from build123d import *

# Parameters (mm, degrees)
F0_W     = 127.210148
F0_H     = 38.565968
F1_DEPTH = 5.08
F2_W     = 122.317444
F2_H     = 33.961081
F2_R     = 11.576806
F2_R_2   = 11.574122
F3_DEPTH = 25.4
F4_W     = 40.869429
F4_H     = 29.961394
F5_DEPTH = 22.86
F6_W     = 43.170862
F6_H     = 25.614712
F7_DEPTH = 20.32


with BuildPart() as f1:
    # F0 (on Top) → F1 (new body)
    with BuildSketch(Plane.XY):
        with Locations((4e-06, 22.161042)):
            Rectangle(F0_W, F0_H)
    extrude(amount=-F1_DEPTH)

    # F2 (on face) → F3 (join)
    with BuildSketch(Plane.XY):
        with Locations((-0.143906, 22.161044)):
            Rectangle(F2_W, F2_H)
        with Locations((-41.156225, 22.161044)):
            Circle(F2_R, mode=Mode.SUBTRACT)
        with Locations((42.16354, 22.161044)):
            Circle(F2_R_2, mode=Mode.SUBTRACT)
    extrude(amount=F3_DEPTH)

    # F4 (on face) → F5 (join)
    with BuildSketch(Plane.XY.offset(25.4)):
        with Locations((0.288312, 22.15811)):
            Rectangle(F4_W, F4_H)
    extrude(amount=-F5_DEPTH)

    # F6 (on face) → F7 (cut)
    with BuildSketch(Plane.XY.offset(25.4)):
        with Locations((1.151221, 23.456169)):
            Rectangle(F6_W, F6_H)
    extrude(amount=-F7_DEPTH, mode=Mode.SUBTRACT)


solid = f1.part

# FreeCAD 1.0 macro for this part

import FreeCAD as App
import Part
import Sketcher
from FreeCAD import Vector
Q = App.Units.Quantity

doc = App.newDocument("Part")
body = doc.addObject("PartDesign::Body", "Body")

# Sketch on XY plane
sketch1 = body.newObject("Sketcher::SketchObject", "Sketch")
sketch1.AttachmentSupport = (doc.getObject("XY_Plane"), [""])
sketch1.MapMode = "FlatFace"
sketch1.addGeometry(Part.LineSegment(Vector(-64, 41, 0), Vector(-64, 3, 0)), False)
sketch1.addGeometry(Part.LineSegment(Vector(-64, 3, 0), Vector(64, 3, 0)), False)
sketch1.addGeometry(Part.LineSegment(Vector(64, 3, 0), Vector(64, 41, 0)), False)
sketch1.addGeometry(Part.LineSegment(Vector(64, 41, 0), Vector(-64, 41, 0)), False)
sketch1.addConstraint(Sketcher.Constraint("Coincident", 0, 2, 1, 1))
sketch1.addConstraint(Sketcher.Constraint("Coincident", 1, 2, 2, 1))
sketch1.addConstraint(Sketcher.Constraint("Coincident", 2, 2, 3, 1))
sketch1.addConstraint(Sketcher.Constraint("Coincident", 3, 2, 0, 1))
sketch1.addConstraint(Sketcher.Constraint("Vertical", 0))
sketch1.addConstraint(Sketcher.Constraint("Horizontal", 1))
sketch1.addConstraint(Sketcher.Constraint("Vertical", 2))
sketch1.addConstraint(Sketcher.Constraint("Horizontal", 3))
sketch1.addConstraint(Sketcher.Constraint("DistanceX", 1, 1, 1, 2, 127.210148))
sketch1.addConstraint(Sketcher.Constraint("DistanceY", 0, 2, 0, 1, 38.565968))
sketch1.addConstraint(Sketcher.Constraint("DistanceX", 0, 2, -1, 1, 63.60507))
sketch1.addConstraint(Sketcher.Constraint("DistanceY", -1, 1, 0, 2, 2.878058))
pad1 = body.newObject("PartDesign::Pad", "Pad")
pad1.Profile = sketch1
pad1.Length = Q("0.2 in")
pad1.Reversed = True

# Sketch on XY plane
sketch2 = body.newObject("Sketcher::SketchObject", "Sketch001")
sketch2.AttachmentSupport = (doc.getObject("XY_Plane"), [""])
sketch2.MapMode = "FlatFace"
sketch2.addGeometry(Part.LineSegment(Vector(-61, 39, 0), Vector(-61, 5, 0)), False)
sketch2.addGeometry(Part.LineSegment(Vector(-61, 5, 0), Vector(61, 5, 0)), False)
sketch2.addGeometry(Part.LineSegment(Vector(61, 5, 0), Vector(61, 39, 0)), False)
sketch2.addGeometry(Part.LineSegment(Vector(61, 39, 0), Vector(-61, 39, 0)), False)
sketch2.addGeometry(Part.Circle(Vector(-41, 22, 0), Vector(0, 0, 1), 12), False)
sketch2.addGeometry(Part.Circle(Vector(42, 22, 0), Vector(0, 0, 1), 12), False)
sketch2.addConstraint(Sketcher.Constraint("Coincident", 0, 2, 1, 1))
sketch2.addConstraint(Sketcher.Constraint("Coincident", 1, 2, 2, 1))
sketch2.addConstraint(Sketcher.Constraint("Coincident", 2, 2, 3, 1))
sketch2.addConstraint(Sketcher.Constraint("Coincident", 3, 2, 0, 1))
sketch2.addConstraint(Sketcher.Constraint("Vertical", 0))
sketch2.addConstraint(Sketcher.Constraint("Horizontal", 1))
sketch2.addConstraint(Sketcher.Constraint("Vertical", 2))
sketch2.addConstraint(Sketcher.Constraint("Horizontal", 3))
sketch2.addConstraint(Sketcher.Constraint("Horizontal", 4, 3, 5, 3))
sketch2.addConstraint(Sketcher.Constraint("Diameter", 4, 23.153612))
sketch2.addConstraint(Sketcher.Constraint("Diameter", 5, 23.148244))
sketch2.addConstraint(Sketcher.Constraint("DistanceY", 0, 2, 0, 1, 33.961081))
sketch2.addConstraint(Sketcher.Constraint("DistanceX", 1, 1, 1, 2, 122.317444))
sketch2.addConstraint(Sketcher.Constraint("DistanceX", -1, 1, 5, 3, 42.16354))
sketch2.addConstraint(Sketcher.Constraint("DistanceY", 0, 2, 4, 3, 16.980541))
sketch2.addConstraint(Sketcher.Constraint("DistanceX", 4, 3, 1, 2, 102.171041))
sketch2.addConstraint(Sketcher.Constraint("DistanceX", 4, 3, -1, 1, 41.156225))
sketch2.addConstraint(Sketcher.Constraint("DistanceY", -1, 1, 4, 3, 22.161044))
pad2 = body.newObject("PartDesign::Pad", "Pad001")
pad2.Profile = sketch2
pad2.Length = Q("1 in")

# Sketch on XY plane
sketch3 = body.newObject("Sketcher::SketchObject", "Sketch002")
sketch3.AttachmentSupport = (doc.getObject("XY_Plane"), [""])
sketch3.MapMode = "FlatFace"
sketch3.AttachmentOffset = App.Placement(Vector(0, 0, 1 * 25.4), App.Rotation())
sketch3.addGeometry(Part.LineSegment(Vector(-20, 37, 0), Vector(-20, 7, 0)), False)
sketch3.addGeometry(Part.LineSegment(Vector(-20, 7, 0), Vector(21, 7, 0)), False)
sketch3.addGeometry(Part.LineSegment(Vector(21, 7, 0), Vector(21, 37, 0)), False)
sketch3.addGeometry(Part.LineSegment(Vector(21, 37, 0), Vector(-20, 37, 0)), False)
sketch3.addConstraint(Sketcher.Constraint("Coincident", 0, 2, 1, 1))
sketch3.addConstraint(Sketcher.Constraint("Coincident", 1, 2, 2, 1))
sketch3.addConstraint(Sketcher.Constraint("Coincident", 2, 2, 3, 1))
sketch3.addConstraint(Sketcher.Constraint("Coincident", 3, 2, 0, 1))
sketch3.addConstraint(Sketcher.Constraint("Vertical", 0))
sketch3.addConstraint(Sketcher.Constraint("Horizontal", 1))
sketch3.addConstraint(Sketcher.Constraint("Vertical", 2))
sketch3.addConstraint(Sketcher.Constraint("Horizontal", 3))
sketch3.addConstraint(Sketcher.Constraint("DistanceX", 1, 1, 1, 2, 40.869429))
sketch3.addConstraint(Sketcher.Constraint("DistanceY", 0, 2, 0, 1, 29.961394))
sketch3.addConstraint(Sketcher.Constraint("DistanceX", 0, 2, -1, 1, 20.146403))
sketch3.addConstraint(Sketcher.Constraint("DistanceY", -1, 1, 0, 2, 7.177413))
pad3 = body.newObject("PartDesign::Pad", "Pad002")
pad3.Profile = sketch3
pad3.Length = Q("0.9 in")
pad3.Reversed = True

# Sketch on XY plane
sketch4 = body.newObject("Sketcher::SketchObject", "Sketch003")
sketch4.AttachmentSupport = (doc.getObject("XY_Plane"), [""])
sketch4.MapMode = "FlatFace"
sketch4.AttachmentOffset = App.Placement(Vector(0, 0, 1 * 25.4), App.Rotation())
sketch4.addGeometry(Part.LineSegment(Vector(-20, 36, 0), Vector(-20, 11, 0)), False)
sketch4.addGeometry(Part.LineSegment(Vector(-20, 11, 0), Vector(23, 11, 0)), False)
sketch4.addGeometry(Part.LineSegment(Vector(23, 11, 0), Vector(23, 36, 0)), False)
sketch4.addGeometry(Part.LineSegment(Vector(23, 36, 0), Vector(-20, 36, 0)), False)
sketch4.addConstraint(Sketcher.Constraint("Coincident", 0, 2, 1, 1))
sketch4.addConstraint(Sketcher.Constraint("Coincident", 1, 2, 2, 1))
sketch4.addConstraint(Sketcher.Constraint("Coincident", 2, 2, 3, 1))
sketch4.addConstraint(Sketcher.Constraint("Coincident", 3, 2, 0, 1))
sketch4.addConstraint(Sketcher.Constraint("Vertical", 0))
sketch4.addConstraint(Sketcher.Constraint("Horizontal", 1))
sketch4.addConstraint(Sketcher.Constraint("Vertical", 2))
sketch4.addConstraint(Sketcher.Constraint("Horizontal", 3))
sketch4.addConstraint(Sketcher.Constraint("DistanceX", 1, 1, 1, 2, 43.170862))
sketch4.addConstraint(Sketcher.Constraint("DistanceY", 0, 2, 0, 1, 25.614712))
sketch4.addConstraint(Sketcher.Constraint("DistanceX", 0, 2, -1, 1, 20.43421))
sketch4.addConstraint(Sketcher.Constraint("DistanceY", -1, 1, 0, 2, 10.648813))
pocket1 = body.newObject("PartDesign::Pocket", "Pocket")
pocket1.Profile = sketch4
pocket1.Length = Q("0.8 in")

doc.recompute()
